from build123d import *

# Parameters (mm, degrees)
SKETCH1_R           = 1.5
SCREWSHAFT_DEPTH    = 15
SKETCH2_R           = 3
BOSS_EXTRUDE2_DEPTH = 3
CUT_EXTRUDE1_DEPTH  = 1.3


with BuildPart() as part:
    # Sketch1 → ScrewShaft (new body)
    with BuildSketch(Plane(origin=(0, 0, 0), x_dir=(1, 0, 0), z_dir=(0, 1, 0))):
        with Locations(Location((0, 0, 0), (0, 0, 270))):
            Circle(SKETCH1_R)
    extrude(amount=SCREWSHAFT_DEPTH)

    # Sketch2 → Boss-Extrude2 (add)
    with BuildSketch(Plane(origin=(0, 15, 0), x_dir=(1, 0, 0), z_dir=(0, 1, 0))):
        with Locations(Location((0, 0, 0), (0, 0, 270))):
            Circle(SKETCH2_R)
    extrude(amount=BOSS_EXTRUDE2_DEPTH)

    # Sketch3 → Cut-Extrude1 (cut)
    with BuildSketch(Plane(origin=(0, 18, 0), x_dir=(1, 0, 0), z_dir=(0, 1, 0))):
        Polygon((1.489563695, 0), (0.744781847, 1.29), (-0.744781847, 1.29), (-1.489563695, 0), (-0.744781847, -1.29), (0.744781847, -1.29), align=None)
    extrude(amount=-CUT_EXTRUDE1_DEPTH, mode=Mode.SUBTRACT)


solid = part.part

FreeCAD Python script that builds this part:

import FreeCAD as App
import Part
import Sketcher

V = App.Vector
Q = App.Units.Quantity

doc = App.newDocument("Part")
body = doc.addObject("PartDesign::Body", "Body")

sketch1 = doc.addObject("Sketcher::SketchObject", "Sketch")
body.addObject(sketch1)
sketch1.AttachmentSupport = (doc.XZ_Plane, [""])
sketch1.MapMode = "FlatFace"
sketch1.addGeometry(Part.Circle(V(0, 0, 0), V(0, 0, 1), 1.5), False)
sketch1.addConstraint([
    Sketcher.Constraint("Coincident", 0, 3, -1, 1),
    Sketcher.Constraint("Diameter", 0, Q("3 mm")),
])
pad1 = doc.addObject("PartDesign::Pad", "Pad")
body.addObject(pad1)
pad1.Profile = sketch1
pad1.Length = 15
pad1.Reversed = True

sketch2 = doc.addObject("Sketcher::SketchObject", "Sketch001")
body.addObject(sketch2)
sketch2.AttachmentSupport = (doc.XZ_Plane, [""])
sketch2.MapMode = "FlatFace"
sketch2.AttachmentOffset = App.Placement(V(0, 0, -15), App.Rotation())
sketch2.addGeometry(Part.Circle(V(0, 0, 0), V(0, 0, 1), 3), False)
sketch2.addConstraint([
    Sketcher.Constraint("Coincident", 0, 3, -1, 1),
    Sketcher.Constraint("Diameter", 0, Q("6 mm")),
])
pad2 = doc.addObject("PartDesign::Pad", "Pad001")
body.addObject(pad2)
pad2.Profile = sketch2
pad2.Length = 3
pad2.Reversed = True

sketch3 = doc.addObject("Sketcher::SketchObject", "Sketch002")
body.addObject(sketch3)
sketch3.AttachmentSupport = (doc.XZ_Plane, [""])
sketch3.MapMode = "FlatFace"
sketch3.AttachmentOffset = App.Placement(V(0, 0, -18), App.Rotation())
sketch3.addGeometry([
    Part.LineSegment(V(1.5, 0, 0), V(0.7, -1.3, 0)),
    Part.LineSegment(V(0.7, -1.3, 0), V(-0.7, -1.3, 0)),
    Part.LineSegment(V(-0.7, -1.3, 0), V(-1.5, 0, 0)),
    Part.LineSegment(V(-1.5, 0, 0), V(-0.7, 1.3, 0)),
    Part.LineSegment(V(-0.7, 1.3, 0), V(0.7, 1.3, 0)),
    Part.LineSegment(V(0.7, 1.3, 0), V(1.5, 0, 0)),
], False)
sketch3.addConstraint([
    Sketcher.Constraint("Coincident", 0, 2, 1, 1),
    Sketcher.Constraint("Coincident", 1, 2, 2, 1),
    Sketcher.Constraint("Coincident", 2, 2, 3, 1),
    Sketcher.Constraint("Coincident", 3, 2, 4, 1),
    Sketcher.Constraint("Coincident", 4, 2, 5, 1),
    Sketcher.Constraint("Coincident", 5, 2, 0, 1),
    Sketcher.Constraint("Horizontal", 1),
    Sketcher.Constraint("Horizontal", 4),
    Sketcher.Constraint("Symmetric", 0, 2, 3, 2, -1, 1),
    Sketcher.Constraint("Symmetric", 2, 2, 5, 2, -1, 1),
    Sketcher.Constraint("PointOnObject", 2, 2, -1),
    Sketcher.Constraint("Parallel", 2, 5),
    Sketcher.Constraint("Vertical", 1, 2, 3, 2),
    Sketcher.Constraint("Angle", 0, Q("-120 deg")),
    Sketcher.Constraint("DistanceY", 0, 2, -1, 1, Q("1.29 mm")),
    Sketcher.Constraint("DistanceX", 1, 2, 1, 1, Q("1.489564 mm")),
])
pocket1 = doc.addObject("PartDesign::Pocket", "Pocket")
body.addObject(pocket1)
pocket1.Profile = sketch3
pocket1.Length = 1.3
pocket1.Reversed = True

doc.recompute()
